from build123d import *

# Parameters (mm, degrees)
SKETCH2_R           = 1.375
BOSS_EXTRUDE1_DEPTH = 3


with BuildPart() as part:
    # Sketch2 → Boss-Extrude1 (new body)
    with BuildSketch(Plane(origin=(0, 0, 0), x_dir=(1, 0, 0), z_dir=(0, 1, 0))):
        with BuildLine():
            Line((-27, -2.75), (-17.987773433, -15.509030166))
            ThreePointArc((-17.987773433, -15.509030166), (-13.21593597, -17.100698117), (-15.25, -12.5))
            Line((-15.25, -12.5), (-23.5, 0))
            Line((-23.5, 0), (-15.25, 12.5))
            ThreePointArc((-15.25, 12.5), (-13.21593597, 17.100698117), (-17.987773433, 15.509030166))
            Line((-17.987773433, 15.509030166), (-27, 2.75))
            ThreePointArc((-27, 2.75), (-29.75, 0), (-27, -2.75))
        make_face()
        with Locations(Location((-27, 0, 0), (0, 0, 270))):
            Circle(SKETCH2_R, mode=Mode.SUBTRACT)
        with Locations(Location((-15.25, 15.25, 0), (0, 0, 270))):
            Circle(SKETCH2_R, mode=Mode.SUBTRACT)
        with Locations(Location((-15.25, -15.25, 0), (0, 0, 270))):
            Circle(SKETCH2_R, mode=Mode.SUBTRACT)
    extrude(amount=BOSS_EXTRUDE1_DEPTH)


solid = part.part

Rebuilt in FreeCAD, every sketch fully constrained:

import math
import FreeCAD as App
import Part
import Sketcher
Q = App.Units.Quantity

doc = App.newDocument("Part")
body = doc.addObject("PartDesign::Body", "Body")

sketch1 = doc.addObject("Sketcher::SketchObject", "Sketch")
body.addObject(sketch1)
sketch1.AttachmentSupport = (doc.XZ_Plane, [""])
sketch1.MapMode = "FlatFace"
sketch1.addGeometry([
    Part.LineSegment(App.Vector(-27, 2.75, 0), App.Vector(-17.987773, 15.50903, 0)),
    Part.ArcOfCircle(Part.Circle(App.Vector(-15.25, 15.25, 0), App.Vector(0, 0, 1), 2.75), math.radians(-90), math.radians(174.595138)),
    Part.LineSegment(App.Vector(-15.25, 12.5, 0), App.Vector(-23.5, 0, 0)),
    Part.LineSegment(App.Vector(-23.5, 0, 0), App.Vector(-15.25, -12.5, 0)),
    Part.ArcOfCircle(Part.Circle(App.Vector(-15.25, -15.25, 0), App.Vector(0, 0, 1), 2.75), math.radians(-174.595138), math.radians(90)),
    Part.LineSegment(App.Vector(-17.987773, -15.50903, 0), App.Vector(-27, -2.75, 0)),
    Part.ArcOfCircle(Part.Circle(App.Vector(-27, 0, 0), App.Vector(0, 0, 1), 2.75), math.radians(90), math.radians(270)),
    Part.Circle(App.Vector(-15.25, 15.25, 0), App.Vector(0, 0, 1), 1.375),
    Part.Circle(App.Vector(-27, 0, 0), App.Vector(0, 0, 1), 1.375),
    Part.Circle(App.Vector(-15.25, -15.25, 0), App.Vector(0, 0, 1), 1.375),
], False)
sketch1.addConstraint([
    Sketcher.Constraint("Coincident", 0, 2, 1, 2),
    Sketcher.Constraint("Coincident", 1, 1, 2, 1),
    Sketcher.Constraint("Coincident", 2, 2, 3, 1),
    Sketcher.Constraint("Coincident", 3, 2, 4, 2),
    Sketcher.Constraint("Coincident", 4, 1, 5, 1),
    Sketcher.Constraint("Coincident", 5, 2, 6, 2),
    Sketcher.Constraint("Coincident", 6, 1, 0, 1),
    Sketcher.Constraint("Coincident", 7, 3, 1, 3),
    Sketcher.Constraint("Coincident", 8, 3, 6, 3),
    Sketcher.Constraint("Coincident", 9, 3, 4, 3),
    Sketcher.Constraint("Equal", 1, 4),
    Sketcher.Constraint("Equal", 4, 6),
    Sketcher.Constraint("Equal", 7, 8),
    Sketcher.Constraint("Equal", 8, 9),
    Sketcher.Constraint("Symmetric", 1, 3, 4, 3, -1),
    Sketcher.Constraint("Symmetric", 5, 2, 6, 1, -1),
    Sketcher.Constraint("PointOnObject", 2, 2, -1),
    Sketcher.Constraint("Vertical", 9, 3, 1, 1),
    Sketcher.Constraint("Vertical", 1, 1, 3, 2),
    Sketcher.Constraint("Vertical", 0, 2, 4, 1),
    Sketcher.Constraint("Vertical", 8, 3, 5, 2),
    Sketcher.Constraint("Diameter", 7, Q("2.75 mm")),
    Sketcher.Constraint("Radius", 1, Q("2.75 mm")),
    Sketcher.Constraint("DistanceX", 6, 3, -1, 1, Q("27 mm")),
    Sketcher.Constraint("DistanceY", -1, 1, 1, 1, Q("12.5 mm")),
    Sketcher.Constraint("DistanceX", 2, 2, -1, 1, Q("23.5 mm")),
    Sketcher.Constraint("DistanceX", 1, 3, -1, 1, Q("15.25 mm")),
    Sketcher.Constraint("DistanceY", -1, 1, 0, 2, Q("15.50903 mm")),
])
pad1 = doc.addObject("PartDesign::Pad", "Pad")
body.addObject(pad1)
pad1.Profile = sketch1
pad1.Length = 3
pad1.Reversed = True

doc.recompute()
